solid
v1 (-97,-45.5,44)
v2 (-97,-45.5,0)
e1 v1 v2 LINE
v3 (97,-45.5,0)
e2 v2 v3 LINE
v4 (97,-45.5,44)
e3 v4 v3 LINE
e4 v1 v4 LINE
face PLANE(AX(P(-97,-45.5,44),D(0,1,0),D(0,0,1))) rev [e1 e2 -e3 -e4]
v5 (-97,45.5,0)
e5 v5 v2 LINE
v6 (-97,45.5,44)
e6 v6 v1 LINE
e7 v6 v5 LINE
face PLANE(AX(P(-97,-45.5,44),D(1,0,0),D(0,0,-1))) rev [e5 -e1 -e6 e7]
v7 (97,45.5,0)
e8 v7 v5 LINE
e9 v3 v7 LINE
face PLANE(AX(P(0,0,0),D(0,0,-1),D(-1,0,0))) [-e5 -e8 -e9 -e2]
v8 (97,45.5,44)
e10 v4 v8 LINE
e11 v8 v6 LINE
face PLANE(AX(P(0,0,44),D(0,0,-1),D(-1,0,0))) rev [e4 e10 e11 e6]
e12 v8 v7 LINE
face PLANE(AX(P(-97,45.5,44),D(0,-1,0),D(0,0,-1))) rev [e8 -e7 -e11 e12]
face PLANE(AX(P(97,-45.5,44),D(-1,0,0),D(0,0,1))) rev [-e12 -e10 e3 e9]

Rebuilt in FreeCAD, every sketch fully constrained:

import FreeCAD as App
import Part
import Sketcher
from FreeCAD import Vector
Q = App.Units.Quantity

doc = App.newDocument("Part")
params = doc.addObject("Spreadsheet::Sheet", "Params")
for row, (alias, value) in enumerate([
    ("sketch1_width", "194 mm"),
    ("sketch1_height", "91 mm"),
    ("pad1_length", "44 mm"),
], start=1):
    params.set(f"A{row}", alias)
    params.set(f"B{row}", "=" + value)
    params.setAlias(f"B{row}", alias)

body = doc.addObject("PartDesign::Body", "Body")

sketch1 = body.newObject("Sketcher::SketchObject", "Sketch")
sketch1.AttachmentSupport = (doc.getObject("XY_Plane"), [""])
sketch1.MapMode = "FlatFace"
sketch1.addGeometry([
    Part.LineSegment(Vector(-97, 46, 0), Vector(-97, -46, 0)),
    Part.LineSegment(Vector(-97, -46, 0), Vector(97, -46, 0)),
    Part.LineSegment(Vector(97, -46, 0), Vector(97, 46, 0)),
    Part.LineSegment(Vector(97, 46, 0), Vector(-97, 46, 0)),
], False)
sketch1.addConstraint([
    Sketcher.Constraint("Coincident", 0, 2, 1, 1),
    Sketcher.Constraint("Coincident", 1, 2, 2, 1),
    Sketcher.Constraint("Coincident", 2, 2, 3, 1),
    Sketcher.Constraint("Coincident", 3, 2, 0, 1),
    Sketcher.Constraint("Vertical", 0),
    Sketcher.Constraint("Horizontal", 1),
    Sketcher.Constraint("Vertical", 2),
    Sketcher.Constraint("Horizontal", 3),
    Sketcher.Constraint("Symmetric", 0, 2, 2, 2, -1, 1),
    Sketcher.Constraint("DistanceX", 1, 1, 1, 2, Q("194 mm")),
    Sketcher.Constraint("DistanceY", 0, 2, 0, 1, Q("91 mm")),
])
sketch1.setExpression("Constraints[9]", "Params.sketch1_width")
sketch1.setExpression("Constraints[10]", "Params.sketch1_height")
pad1 = body.newObject("PartDesign::Pad", "Pad")
pad1.Profile = sketch1
pad1.setExpression("Length", "Params.pad1_length")

doc.recompute()
